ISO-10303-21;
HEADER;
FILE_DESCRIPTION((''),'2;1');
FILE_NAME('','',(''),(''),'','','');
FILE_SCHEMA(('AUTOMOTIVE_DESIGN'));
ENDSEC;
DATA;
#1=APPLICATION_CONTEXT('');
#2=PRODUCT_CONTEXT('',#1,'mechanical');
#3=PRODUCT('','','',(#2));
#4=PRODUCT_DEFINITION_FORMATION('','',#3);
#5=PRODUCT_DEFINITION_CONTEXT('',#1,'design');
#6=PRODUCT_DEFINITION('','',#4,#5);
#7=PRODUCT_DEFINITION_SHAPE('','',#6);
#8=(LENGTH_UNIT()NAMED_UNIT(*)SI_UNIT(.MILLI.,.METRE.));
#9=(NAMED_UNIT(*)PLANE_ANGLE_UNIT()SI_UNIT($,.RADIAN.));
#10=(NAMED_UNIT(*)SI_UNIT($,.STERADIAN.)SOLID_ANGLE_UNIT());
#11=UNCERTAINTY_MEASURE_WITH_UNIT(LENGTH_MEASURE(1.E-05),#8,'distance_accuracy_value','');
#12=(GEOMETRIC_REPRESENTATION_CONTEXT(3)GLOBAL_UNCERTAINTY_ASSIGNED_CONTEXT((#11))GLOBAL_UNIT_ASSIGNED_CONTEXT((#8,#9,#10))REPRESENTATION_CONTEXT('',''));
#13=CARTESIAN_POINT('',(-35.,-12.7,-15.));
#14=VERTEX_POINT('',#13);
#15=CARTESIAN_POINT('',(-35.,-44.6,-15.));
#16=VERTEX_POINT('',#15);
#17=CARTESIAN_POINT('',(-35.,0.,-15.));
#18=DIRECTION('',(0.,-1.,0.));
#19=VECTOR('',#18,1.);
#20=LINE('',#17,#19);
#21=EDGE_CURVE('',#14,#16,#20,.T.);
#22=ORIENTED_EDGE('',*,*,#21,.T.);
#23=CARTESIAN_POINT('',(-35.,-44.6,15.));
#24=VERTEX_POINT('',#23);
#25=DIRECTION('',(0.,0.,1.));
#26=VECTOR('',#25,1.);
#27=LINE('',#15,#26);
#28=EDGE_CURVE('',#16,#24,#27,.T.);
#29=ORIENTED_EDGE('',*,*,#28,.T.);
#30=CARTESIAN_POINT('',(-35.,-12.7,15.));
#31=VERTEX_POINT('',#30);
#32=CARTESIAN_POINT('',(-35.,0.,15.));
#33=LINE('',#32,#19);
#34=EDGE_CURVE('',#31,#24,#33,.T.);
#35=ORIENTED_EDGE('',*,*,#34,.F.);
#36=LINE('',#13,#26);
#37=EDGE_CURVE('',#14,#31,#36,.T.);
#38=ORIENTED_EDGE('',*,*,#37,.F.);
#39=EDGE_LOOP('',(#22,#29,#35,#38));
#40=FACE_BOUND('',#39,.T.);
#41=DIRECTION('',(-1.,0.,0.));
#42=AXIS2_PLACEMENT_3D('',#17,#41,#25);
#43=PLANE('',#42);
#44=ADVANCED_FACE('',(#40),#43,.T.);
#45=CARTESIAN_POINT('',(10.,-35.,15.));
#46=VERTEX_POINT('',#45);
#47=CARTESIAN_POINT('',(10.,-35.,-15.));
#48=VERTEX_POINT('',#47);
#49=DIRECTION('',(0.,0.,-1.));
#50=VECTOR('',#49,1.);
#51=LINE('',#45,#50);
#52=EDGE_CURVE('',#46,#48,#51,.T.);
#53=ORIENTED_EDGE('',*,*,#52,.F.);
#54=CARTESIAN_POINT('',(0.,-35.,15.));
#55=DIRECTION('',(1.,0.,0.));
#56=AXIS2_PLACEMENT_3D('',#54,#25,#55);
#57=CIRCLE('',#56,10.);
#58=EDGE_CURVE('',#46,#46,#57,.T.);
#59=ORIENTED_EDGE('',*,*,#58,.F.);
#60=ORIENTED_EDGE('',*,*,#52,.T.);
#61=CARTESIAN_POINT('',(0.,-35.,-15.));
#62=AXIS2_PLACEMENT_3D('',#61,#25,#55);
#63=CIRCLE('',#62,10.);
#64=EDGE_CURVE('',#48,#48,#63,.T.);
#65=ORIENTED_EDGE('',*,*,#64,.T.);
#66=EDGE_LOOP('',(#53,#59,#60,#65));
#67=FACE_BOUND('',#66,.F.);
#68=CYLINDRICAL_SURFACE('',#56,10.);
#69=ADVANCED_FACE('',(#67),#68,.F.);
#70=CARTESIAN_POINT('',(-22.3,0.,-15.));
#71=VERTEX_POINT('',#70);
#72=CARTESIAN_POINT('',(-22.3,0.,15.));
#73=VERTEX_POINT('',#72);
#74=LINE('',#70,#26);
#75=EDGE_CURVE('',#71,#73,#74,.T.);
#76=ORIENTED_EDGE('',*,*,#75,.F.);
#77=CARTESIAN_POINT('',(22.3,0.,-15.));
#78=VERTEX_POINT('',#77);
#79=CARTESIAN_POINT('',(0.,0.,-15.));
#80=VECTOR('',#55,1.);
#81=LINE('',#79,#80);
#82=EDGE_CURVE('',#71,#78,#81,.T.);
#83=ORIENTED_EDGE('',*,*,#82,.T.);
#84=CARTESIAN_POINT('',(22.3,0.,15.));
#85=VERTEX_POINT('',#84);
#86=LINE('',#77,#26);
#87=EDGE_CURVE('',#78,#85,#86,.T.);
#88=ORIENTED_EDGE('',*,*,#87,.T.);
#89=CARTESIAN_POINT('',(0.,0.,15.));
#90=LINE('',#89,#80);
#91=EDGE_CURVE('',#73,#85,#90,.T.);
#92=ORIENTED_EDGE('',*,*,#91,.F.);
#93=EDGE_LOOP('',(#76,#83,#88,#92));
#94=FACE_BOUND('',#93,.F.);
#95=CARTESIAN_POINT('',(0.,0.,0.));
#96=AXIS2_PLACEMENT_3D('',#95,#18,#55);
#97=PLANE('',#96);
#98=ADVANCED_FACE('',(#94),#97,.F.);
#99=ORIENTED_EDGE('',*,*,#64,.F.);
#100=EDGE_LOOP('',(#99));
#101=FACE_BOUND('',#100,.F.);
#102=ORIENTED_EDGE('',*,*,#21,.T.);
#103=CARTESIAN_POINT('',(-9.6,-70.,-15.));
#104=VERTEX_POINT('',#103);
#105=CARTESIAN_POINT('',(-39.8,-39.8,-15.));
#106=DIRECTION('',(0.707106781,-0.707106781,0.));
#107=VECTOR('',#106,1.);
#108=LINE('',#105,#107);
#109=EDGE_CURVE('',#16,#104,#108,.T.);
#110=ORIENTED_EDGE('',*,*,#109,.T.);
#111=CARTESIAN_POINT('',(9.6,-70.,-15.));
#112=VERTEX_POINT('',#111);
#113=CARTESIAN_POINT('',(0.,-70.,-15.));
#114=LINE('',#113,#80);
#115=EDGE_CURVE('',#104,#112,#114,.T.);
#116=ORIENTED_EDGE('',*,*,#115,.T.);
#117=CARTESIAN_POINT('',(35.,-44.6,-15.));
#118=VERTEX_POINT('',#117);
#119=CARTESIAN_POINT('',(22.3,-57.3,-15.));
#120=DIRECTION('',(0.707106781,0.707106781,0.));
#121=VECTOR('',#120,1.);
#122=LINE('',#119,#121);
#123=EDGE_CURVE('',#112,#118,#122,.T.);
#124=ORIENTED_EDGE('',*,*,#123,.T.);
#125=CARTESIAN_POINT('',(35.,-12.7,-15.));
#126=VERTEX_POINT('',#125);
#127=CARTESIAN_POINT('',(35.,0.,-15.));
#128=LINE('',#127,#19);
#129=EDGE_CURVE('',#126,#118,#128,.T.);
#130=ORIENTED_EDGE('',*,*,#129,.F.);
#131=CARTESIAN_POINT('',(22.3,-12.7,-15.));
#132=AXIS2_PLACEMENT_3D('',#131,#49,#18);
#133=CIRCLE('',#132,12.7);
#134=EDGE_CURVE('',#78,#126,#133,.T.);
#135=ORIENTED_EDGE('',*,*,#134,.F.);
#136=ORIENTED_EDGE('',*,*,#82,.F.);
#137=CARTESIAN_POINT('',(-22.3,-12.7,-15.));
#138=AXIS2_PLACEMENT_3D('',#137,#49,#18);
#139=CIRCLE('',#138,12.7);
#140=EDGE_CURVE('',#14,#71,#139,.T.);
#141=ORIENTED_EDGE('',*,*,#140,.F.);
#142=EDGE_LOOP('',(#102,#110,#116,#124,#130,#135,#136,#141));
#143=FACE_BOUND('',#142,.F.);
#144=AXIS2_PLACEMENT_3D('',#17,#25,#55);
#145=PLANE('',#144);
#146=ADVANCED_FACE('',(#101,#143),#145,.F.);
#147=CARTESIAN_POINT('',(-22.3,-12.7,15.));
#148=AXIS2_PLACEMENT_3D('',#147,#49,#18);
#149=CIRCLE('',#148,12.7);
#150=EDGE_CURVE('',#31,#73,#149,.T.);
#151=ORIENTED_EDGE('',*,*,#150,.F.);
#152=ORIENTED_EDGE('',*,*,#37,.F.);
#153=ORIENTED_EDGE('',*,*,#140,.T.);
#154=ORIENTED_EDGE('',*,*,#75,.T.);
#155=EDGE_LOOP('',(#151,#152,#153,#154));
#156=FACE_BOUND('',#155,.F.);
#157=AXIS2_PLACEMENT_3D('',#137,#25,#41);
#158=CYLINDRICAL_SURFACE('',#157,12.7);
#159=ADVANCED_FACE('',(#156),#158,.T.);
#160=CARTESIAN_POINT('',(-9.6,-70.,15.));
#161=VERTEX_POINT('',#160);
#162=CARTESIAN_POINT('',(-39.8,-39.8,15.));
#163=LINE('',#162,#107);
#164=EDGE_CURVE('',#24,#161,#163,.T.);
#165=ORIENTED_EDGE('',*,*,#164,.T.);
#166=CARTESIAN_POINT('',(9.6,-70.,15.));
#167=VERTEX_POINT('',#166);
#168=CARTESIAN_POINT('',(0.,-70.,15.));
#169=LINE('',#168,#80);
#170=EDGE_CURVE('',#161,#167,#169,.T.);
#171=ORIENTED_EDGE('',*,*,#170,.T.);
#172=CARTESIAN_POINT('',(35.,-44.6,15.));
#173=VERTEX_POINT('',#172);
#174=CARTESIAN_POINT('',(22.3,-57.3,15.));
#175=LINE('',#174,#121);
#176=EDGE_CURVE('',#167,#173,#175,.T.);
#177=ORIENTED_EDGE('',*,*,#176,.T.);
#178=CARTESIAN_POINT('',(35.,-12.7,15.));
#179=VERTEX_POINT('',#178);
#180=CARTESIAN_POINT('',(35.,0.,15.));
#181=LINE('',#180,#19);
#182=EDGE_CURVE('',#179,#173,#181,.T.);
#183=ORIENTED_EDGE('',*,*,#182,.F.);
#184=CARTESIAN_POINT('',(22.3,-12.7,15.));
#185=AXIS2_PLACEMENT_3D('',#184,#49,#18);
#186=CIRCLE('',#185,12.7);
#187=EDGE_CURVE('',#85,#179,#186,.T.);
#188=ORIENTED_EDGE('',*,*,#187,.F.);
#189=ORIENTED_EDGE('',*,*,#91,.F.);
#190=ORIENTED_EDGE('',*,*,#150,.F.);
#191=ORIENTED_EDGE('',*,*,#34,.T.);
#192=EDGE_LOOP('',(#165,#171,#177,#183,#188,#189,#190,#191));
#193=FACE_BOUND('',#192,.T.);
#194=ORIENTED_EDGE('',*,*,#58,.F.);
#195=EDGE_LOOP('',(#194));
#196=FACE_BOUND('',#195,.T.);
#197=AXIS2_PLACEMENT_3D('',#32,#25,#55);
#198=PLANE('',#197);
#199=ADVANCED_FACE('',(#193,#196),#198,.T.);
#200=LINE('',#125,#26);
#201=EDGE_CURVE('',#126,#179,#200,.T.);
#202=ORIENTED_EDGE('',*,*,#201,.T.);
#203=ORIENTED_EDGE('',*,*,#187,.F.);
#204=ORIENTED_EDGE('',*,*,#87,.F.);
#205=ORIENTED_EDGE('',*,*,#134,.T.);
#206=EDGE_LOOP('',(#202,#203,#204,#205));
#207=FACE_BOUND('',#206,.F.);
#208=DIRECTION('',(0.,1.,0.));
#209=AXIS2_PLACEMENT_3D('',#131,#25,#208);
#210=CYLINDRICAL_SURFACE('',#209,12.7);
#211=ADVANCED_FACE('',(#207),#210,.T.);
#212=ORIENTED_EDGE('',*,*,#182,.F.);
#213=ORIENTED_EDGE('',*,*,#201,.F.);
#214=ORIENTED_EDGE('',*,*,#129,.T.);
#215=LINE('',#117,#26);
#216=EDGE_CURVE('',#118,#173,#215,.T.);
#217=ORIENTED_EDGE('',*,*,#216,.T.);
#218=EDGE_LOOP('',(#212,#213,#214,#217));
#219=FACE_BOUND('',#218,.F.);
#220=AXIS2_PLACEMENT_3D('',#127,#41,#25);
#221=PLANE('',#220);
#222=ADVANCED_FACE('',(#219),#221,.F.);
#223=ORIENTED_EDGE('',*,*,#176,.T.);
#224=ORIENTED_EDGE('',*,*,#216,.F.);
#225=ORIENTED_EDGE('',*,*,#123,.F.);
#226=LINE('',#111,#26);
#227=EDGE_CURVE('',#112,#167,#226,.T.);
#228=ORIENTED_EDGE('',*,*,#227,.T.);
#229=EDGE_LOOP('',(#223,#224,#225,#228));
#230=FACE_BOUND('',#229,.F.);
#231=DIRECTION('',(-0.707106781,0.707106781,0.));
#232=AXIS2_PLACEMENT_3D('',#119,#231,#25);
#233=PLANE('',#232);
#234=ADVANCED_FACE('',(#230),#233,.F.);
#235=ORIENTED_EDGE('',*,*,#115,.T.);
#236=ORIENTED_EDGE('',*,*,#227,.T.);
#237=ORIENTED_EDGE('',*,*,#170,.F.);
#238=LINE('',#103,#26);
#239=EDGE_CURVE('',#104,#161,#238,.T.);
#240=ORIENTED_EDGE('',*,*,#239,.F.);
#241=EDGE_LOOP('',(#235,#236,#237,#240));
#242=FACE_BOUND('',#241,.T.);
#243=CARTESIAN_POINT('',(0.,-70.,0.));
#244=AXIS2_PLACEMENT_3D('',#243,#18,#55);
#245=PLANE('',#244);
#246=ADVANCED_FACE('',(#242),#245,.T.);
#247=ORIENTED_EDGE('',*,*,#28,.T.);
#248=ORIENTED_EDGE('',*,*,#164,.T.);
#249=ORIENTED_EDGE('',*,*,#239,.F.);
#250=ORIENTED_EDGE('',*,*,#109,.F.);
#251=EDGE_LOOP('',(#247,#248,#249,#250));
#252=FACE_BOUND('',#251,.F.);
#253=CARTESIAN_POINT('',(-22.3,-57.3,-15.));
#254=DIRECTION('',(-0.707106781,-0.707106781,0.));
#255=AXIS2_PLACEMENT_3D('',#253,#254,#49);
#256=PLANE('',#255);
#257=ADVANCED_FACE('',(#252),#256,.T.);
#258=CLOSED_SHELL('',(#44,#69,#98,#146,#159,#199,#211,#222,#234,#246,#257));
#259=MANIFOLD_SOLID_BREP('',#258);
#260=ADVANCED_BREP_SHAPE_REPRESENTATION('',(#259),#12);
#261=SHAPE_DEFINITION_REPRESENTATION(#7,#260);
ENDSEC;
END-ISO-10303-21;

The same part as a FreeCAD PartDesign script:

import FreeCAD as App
import Part
import Sketcher


def edges_at(feature, points):
    """Names of the edges that pass closest to the given points."""
    edges = feature.Shape.Edges
    near = lambda p: min(range(len(edges)), key=lambda i: edges[i].distToShape(Part.Vertex(*p))[0])
    return sorted({f"Edge{near(p) + 1}" for p in points})

doc = App.newDocument("Part")
body = doc.addObject("PartDesign::Body", "Body")

sketch1 = body.newObject("Sketcher::SketchObject", "Sketch")
sketch1.AttachmentSupport = (doc.getObject("XZ_Plane"), [""])
sketch1.MapMode = "FlatFace"
sketch1.addGeometry(Part.LineSegment(App.Vector(-35, 15, 0), App.Vector(-35, -15, 0)), False)
sketch1.addGeometry(Part.LineSegment(App.Vector(-35, -15, 0), App.Vector(35, -15, 0)), False)
sketch1.addGeometry(Part.LineSegment(App.Vector(35, -15, 0), App.Vector(35, 15, 0)), False)
sketch1.addGeometry(Part.LineSegment(App.Vector(35, 15, 0), App.Vector(-35, 15, 0)), False)
sketch1.addConstraint(Sketcher.Constraint("Coincident", 0, 2, 1, 1))
sketch1.addConstraint(Sketcher.Constraint("Coincident", 1, 2, 2, 1))
sketch1.addConstraint(Sketcher.Constraint("Coincident", 2, 2, 3, 1))
sketch1.addConstraint(Sketcher.Constraint("Coincident", 3, 2, 0, 1))
sketch1.addConstraint(Sketcher.Constraint("Vertical", 0))
sketch1.addConstraint(Sketcher.Constraint("Horizontal", 1))
sketch1.addConstraint(Sketcher.Constraint("Vertical", 2))
sketch1.addConstraint(Sketcher.Constraint("Horizontal", 3))
sketch1.addConstraint(Sketcher.Constraint("Symmetric", 0, 2, 2, 2, -1, 1))
sketch1.addConstraint(Sketcher.Constraint("DistanceX", 1, 1, 1, 2, 70.0))
sketch1.addConstraint(Sketcher.Constraint("DistanceY", 0, 2, 0, 1, 30.0))
pad1 = body.newObject("PartDesign::Pad", "Pad")
pad1.Profile = sketch1
pad1.Length = 70

sketch2 = body.newObject("Sketcher::SketchObject", "Sketch001")
sketch2.AttachmentSupport = (doc.getObject("XY_Plane"), [""])
sketch2.MapMode = "FlatFace"
sketch2.AttachmentOffset = App.Placement(App.Vector(0, 0, 15), App.Rotation())
sketch2.addGeometry(Part.Circle(App.Vector(0, -35, 0), App.Vector(0, 0, 1), 10), False)
sketch2.addConstraint(Sketcher.Constraint("PointOnObject", 0, 3, -2))
sketch2.addConstraint(Sketcher.Constraint("Diameter", 0, 20.0))
sketch2.addConstraint(Sketcher.Constraint("DistanceY", 0, 3, -1, 1, 35.0))
pocket1 = body.newObject("PartDesign::Pocket", "Pocket")
pocket1.Profile = sketch2
pocket1.Type = "ThroughAll"
doc.recompute()

fillet = body.newObject("PartDesign::Fillet", "Fillet")
fillet.Base = (pocket1, edges_at(pocket1, [(-35, 0, 0), (35, 0, 0)]))
fillet.Radius = 12.7
doc.recompute()

chamfer = body.newObject("PartDesign::Chamfer", "Chamfer")
chamfer.Base = (fillet, edges_at(fillet, [(-35, -70, 0), (35, -70, 0)]))
chamfer.Size = 25.4

doc.recompute()
